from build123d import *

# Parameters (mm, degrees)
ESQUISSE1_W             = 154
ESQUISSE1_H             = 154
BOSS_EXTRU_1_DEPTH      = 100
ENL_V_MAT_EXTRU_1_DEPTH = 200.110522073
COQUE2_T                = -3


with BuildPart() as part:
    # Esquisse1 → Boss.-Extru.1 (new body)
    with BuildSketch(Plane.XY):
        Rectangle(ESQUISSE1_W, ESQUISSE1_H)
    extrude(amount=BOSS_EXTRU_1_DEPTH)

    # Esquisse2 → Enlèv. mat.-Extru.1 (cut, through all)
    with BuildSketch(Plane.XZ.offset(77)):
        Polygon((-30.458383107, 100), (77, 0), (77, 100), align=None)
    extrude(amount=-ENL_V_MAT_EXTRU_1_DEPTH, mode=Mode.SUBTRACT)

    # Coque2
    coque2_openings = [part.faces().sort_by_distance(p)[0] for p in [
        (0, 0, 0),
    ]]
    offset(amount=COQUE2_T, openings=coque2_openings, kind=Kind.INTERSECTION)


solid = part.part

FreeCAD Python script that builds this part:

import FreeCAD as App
import Part
import Sketcher
from FreeCAD import Vector
Q = App.Units.Quantity


def faces_at(feature, points):
    """Names of the faces that lie closest to the given points."""
    faces = feature.Shape.Faces
    near = lambda p: min(range(len(faces)), key=lambda i: faces[i].distToShape(Part.Vertex(*p))[0])
    return sorted({f"Face{near(p) + 1}" for p in points})


def add_polygon(sketch, points):
    """Adds a closed chain of lines whose ends are joined by coincident constraints."""
    first, n = sketch.GeometryCount, len(points)
    for a, b in zip(points, points[1:] + points[:1]):
        sketch.addGeometry(Part.LineSegment(App.Vector(*a, 0), App.Vector(*b, 0)), False)
    for i in range(n):
        sketch.addConstraint(Sketcher.Constraint("Coincident", first + i, 2, first + (i + 1) % n, 1))

doc = App.newDocument("Part")
body = doc.addObject("PartDesign::Body", "Body")

# Sketch on XY plane
sketch1 = doc.addObject("Sketcher::SketchObject", "Sketch")
body.addObject(sketch1)
sketch1.AttachmentSupport = (doc.XY_Plane, [""])
sketch1.MapMode = "FlatFace"
add_polygon(sketch1, [(-77, 77), (-77, -77), (77, -77), (77, 77)])  # lines 0-3
sketch1.addConstraint(Sketcher.Constraint("Vertical", 0))
sketch1.addConstraint(Sketcher.Constraint("Horizontal", 1))
sketch1.addConstraint(Sketcher.Constraint("Vertical", 2))
sketch1.addConstraint(Sketcher.Constraint("Horizontal", 3))
sketch1.addConstraint(Sketcher.Constraint("Symmetric", 0, 2, 2, 2, -1, 1))
sketch1.addConstraint(Sketcher.Constraint("Equal", 3, 0))
sketch1.addConstraint(Sketcher.Constraint("DistanceX", 1, 1, 1, 2, Q("154 mm")))
pad1 = doc.addObject("PartDesign::Pad", "Pad")
body.addObject(pad1)
pad1.Profile = sketch1
pad1.Length = 100

# Sketch on XZ plane
sketch2 = doc.addObject("Sketcher::SketchObject", "Sketch001")
body.addObject(sketch2)
sketch2.AttachmentSupport = (doc.XZ_Plane, [""])
sketch2.MapMode = "FlatFace"
sketch2.AttachmentOffset = App.Placement(Vector(0, 0, 77), App.Rotation())
add_polygon(sketch2, [(-30, 100), (77, 0), (77, 100)])  # lines 0-2
sketch2.addConstraint(Sketcher.Constraint("Vertical", 1))
sketch2.addConstraint(Sketcher.Constraint("Horizontal", 2))
sketch2.addConstraint(Sketcher.Constraint("PointOnObject", 0, 2, -1))
sketch2.addConstraint(Sketcher.Constraint("DistanceY", 1, 1, 1, 2, Q("100 mm")))
sketch2.addConstraint(Sketcher.Constraint("DistanceX", -1, 1, 0, 2, Q("77 mm")))
sketch2.addConstraint(Sketcher.Constraint("Distance", 0, Q("146.79 mm")))
pocket1 = doc.addObject("PartDesign::Pocket", "Pocket")
body.addObject(pocket1)
pocket1.Profile = sketch2
pocket1.Type = "ThroughAll"
doc.recompute()

thickness = doc.addObject("PartDesign::Thickness", "Thickness")
body.addObject(thickness)
thickness.Base = (pocket1, faces_at(pocket1, [(0, 0, 0)]))
thickness.Value = 3
thickness.Reversed = True
thickness.Join = "Intersection"

doc.recompute()
